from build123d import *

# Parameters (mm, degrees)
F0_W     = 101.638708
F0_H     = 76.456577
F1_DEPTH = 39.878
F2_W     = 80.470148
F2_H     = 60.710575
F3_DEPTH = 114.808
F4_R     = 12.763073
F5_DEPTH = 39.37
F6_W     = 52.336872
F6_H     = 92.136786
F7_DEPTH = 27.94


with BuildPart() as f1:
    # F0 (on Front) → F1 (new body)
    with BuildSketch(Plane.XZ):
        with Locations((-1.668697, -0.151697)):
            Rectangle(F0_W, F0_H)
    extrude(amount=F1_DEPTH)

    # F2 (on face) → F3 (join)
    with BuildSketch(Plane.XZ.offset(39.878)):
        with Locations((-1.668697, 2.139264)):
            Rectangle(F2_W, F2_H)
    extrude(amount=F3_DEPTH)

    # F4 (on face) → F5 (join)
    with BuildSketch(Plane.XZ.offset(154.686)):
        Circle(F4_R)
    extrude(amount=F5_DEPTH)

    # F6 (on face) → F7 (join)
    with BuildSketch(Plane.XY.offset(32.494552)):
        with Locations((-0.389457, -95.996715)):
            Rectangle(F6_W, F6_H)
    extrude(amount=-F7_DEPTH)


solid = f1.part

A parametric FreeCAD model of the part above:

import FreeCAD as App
import Part
import Sketcher
from FreeCAD import Vector
Q = App.Units.Quantity


def add_polygon(sketch, points):
    """Adds a closed chain of lines whose ends are joined by coincident constraints."""
    first, n = sketch.GeometryCount, len(points)
    for a, b in zip(points, points[1:] + points[:1]):
        sketch.addGeometry(Part.LineSegment(App.Vector(*a, 0), App.Vector(*b, 0)), False)
    for i in range(n):
        sketch.addConstraint(Sketcher.Constraint("Coincident", first + i, 2, first + (i + 1) % n, 1))

doc = App.newDocument("Part")
body = doc.addObject("PartDesign::Body", "Body")

sketch1 = body.newObject("Sketcher::SketchObject", "Sketch")
sketch1.AttachmentSupport = (doc.getObject("XZ_Plane"), [""])
sketch1.MapMode = "FlatFace"
add_polygon(sketch1, [(-52, 38), (-52, -38), (49, -38), (49, 38)])
sketch1.addConstraint(Sketcher.Constraint("Vertical", 0))
sketch1.addConstraint(Sketcher.Constraint("Horizontal", 1))
sketch1.addConstraint(Sketcher.Constraint("Vertical", 2))
sketch1.addConstraint(Sketcher.Constraint("Horizontal", 3))
sketch1.addConstraint(Sketcher.Constraint("DistanceX", 1, 1, 1, 2, Q("101.638708 mm")))
sketch1.addConstraint(Sketcher.Constraint("DistanceY", 0, 2, 0, 1, Q("76.456577 mm")))
sketch1.addConstraint(Sketcher.Constraint("DistanceX", 0, 2, -1, 1, Q("52.488051 mm")))
sketch1.addConstraint(Sketcher.Constraint("DistanceY", -1, 1, 2, 2, Q("38.076591 mm")))
pad1 = body.newObject("PartDesign::Pad", "Pad")
pad1.Profile = sketch1
pad1.Length = Q("1.57 in")

sketch2 = body.newObject("Sketcher::SketchObject", "Sketch001")
sketch2.AttachmentSupport = (doc.getObject("XZ_Plane"), [""])
sketch2.MapMode = "FlatFace"
sketch2.AttachmentOffset = App.Placement(Vector(0, 0, 1.57 * 25.4), App.Rotation())
add_polygon(sketch2, [(-42, 32), (-42, -28), (39, -28), (39, 32)])
sketch2.addConstraint(Sketcher.Constraint("Vertical", 0))
sketch2.addConstraint(Sketcher.Constraint("Horizontal", 1))
sketch2.addConstraint(Sketcher.Constraint("Vertical", 2))
sketch2.addConstraint(Sketcher.Constraint("Horizontal", 3))
sketch2.addConstraint(Sketcher.Constraint("DistanceX", 1, 1, 1, 2, Q("80.470148 mm")))
sketch2.addConstraint(Sketcher.Constraint("DistanceY", 0, 2, 0, 1, Q("60.710575 mm")))
sketch2.addConstraint(Sketcher.Constraint("DistanceX", 0, 2, -1, 1, Q("41.903771 mm")))
sketch2.addConstraint(Sketcher.Constraint("DistanceY", -1, 1, 2, 2, Q("32.494552 mm")))
pad2 = body.newObject("PartDesign::Pad", "Pad001")
pad2.Profile = sketch2
pad2.Length = Q("4.52 in")

sketch3 = body.newObject("Sketcher::SketchObject", "Sketch002")
sketch3.AttachmentSupport = (doc.getObject("XZ_Plane"), [""])
sketch3.MapMode = "FlatFace"
sketch3.AttachmentOffset = App.Placement(Vector(0, 0, 6.09 * 25.4), App.Rotation())
sketch3.addGeometry(Part.Circle(Vector(0, 0, 0), Vector(0, 0, 1), 13), False)
sketch3.addConstraint(Sketcher.Constraint("Coincident", 0, 3, -1, 1))
sketch3.addConstraint(Sketcher.Constraint("Diameter", 0, Q("25.526146 mm")))
pad3 = body.newObject("PartDesign::Pad", "Pad002")
pad3.Profile = sketch3
pad3.Length = Q("1.55 in")

sketch4 = body.newObject("Sketcher::SketchObject", "Sketch003")
sketch4.AttachmentSupport = (doc.getObject("XY_Plane"), [""])
sketch4.MapMode = "FlatFace"
sketch4.AttachmentOffset = App.Placement(Vector(0, 0, 32.494552), App.Rotation())
add_polygon(sketch4, [(-27, -50), (-27, -142), (26, -142), (26, -50)])
sketch4.addConstraint(Sketcher.Constraint("Vertical", 0))
sketch4.addConstraint(Sketcher.Constraint("Horizontal", 1))
sketch4.addConstraint(Sketcher.Constraint("Vertical", 2))
sketch4.addConstraint(Sketcher.Constraint("Horizontal", 3))
sketch4.addConstraint(Sketcher.Constraint("DistanceX", 1, 1, 1, 2, Q("52.336872 mm")))
sketch4.addConstraint(Sketcher.Constraint("DistanceY", 0, 2, 0, 1, Q("92.136786 mm")))
sketch4.addConstraint(Sketcher.Constraint("DistanceY", 0, 2, -1, 1, Q("142.065108 mm")))
sketch4.addConstraint(Sketcher.Constraint("DistanceX", -1, 1, 1, 2, Q("25.778979 mm")))
pad4 = body.newObject("PartDesign::Pad", "Pad003")
pad4.Profile = sketch4
pad4.Length = Q("1.1 in")
pad4.Reversed = True

doc.recompute()
